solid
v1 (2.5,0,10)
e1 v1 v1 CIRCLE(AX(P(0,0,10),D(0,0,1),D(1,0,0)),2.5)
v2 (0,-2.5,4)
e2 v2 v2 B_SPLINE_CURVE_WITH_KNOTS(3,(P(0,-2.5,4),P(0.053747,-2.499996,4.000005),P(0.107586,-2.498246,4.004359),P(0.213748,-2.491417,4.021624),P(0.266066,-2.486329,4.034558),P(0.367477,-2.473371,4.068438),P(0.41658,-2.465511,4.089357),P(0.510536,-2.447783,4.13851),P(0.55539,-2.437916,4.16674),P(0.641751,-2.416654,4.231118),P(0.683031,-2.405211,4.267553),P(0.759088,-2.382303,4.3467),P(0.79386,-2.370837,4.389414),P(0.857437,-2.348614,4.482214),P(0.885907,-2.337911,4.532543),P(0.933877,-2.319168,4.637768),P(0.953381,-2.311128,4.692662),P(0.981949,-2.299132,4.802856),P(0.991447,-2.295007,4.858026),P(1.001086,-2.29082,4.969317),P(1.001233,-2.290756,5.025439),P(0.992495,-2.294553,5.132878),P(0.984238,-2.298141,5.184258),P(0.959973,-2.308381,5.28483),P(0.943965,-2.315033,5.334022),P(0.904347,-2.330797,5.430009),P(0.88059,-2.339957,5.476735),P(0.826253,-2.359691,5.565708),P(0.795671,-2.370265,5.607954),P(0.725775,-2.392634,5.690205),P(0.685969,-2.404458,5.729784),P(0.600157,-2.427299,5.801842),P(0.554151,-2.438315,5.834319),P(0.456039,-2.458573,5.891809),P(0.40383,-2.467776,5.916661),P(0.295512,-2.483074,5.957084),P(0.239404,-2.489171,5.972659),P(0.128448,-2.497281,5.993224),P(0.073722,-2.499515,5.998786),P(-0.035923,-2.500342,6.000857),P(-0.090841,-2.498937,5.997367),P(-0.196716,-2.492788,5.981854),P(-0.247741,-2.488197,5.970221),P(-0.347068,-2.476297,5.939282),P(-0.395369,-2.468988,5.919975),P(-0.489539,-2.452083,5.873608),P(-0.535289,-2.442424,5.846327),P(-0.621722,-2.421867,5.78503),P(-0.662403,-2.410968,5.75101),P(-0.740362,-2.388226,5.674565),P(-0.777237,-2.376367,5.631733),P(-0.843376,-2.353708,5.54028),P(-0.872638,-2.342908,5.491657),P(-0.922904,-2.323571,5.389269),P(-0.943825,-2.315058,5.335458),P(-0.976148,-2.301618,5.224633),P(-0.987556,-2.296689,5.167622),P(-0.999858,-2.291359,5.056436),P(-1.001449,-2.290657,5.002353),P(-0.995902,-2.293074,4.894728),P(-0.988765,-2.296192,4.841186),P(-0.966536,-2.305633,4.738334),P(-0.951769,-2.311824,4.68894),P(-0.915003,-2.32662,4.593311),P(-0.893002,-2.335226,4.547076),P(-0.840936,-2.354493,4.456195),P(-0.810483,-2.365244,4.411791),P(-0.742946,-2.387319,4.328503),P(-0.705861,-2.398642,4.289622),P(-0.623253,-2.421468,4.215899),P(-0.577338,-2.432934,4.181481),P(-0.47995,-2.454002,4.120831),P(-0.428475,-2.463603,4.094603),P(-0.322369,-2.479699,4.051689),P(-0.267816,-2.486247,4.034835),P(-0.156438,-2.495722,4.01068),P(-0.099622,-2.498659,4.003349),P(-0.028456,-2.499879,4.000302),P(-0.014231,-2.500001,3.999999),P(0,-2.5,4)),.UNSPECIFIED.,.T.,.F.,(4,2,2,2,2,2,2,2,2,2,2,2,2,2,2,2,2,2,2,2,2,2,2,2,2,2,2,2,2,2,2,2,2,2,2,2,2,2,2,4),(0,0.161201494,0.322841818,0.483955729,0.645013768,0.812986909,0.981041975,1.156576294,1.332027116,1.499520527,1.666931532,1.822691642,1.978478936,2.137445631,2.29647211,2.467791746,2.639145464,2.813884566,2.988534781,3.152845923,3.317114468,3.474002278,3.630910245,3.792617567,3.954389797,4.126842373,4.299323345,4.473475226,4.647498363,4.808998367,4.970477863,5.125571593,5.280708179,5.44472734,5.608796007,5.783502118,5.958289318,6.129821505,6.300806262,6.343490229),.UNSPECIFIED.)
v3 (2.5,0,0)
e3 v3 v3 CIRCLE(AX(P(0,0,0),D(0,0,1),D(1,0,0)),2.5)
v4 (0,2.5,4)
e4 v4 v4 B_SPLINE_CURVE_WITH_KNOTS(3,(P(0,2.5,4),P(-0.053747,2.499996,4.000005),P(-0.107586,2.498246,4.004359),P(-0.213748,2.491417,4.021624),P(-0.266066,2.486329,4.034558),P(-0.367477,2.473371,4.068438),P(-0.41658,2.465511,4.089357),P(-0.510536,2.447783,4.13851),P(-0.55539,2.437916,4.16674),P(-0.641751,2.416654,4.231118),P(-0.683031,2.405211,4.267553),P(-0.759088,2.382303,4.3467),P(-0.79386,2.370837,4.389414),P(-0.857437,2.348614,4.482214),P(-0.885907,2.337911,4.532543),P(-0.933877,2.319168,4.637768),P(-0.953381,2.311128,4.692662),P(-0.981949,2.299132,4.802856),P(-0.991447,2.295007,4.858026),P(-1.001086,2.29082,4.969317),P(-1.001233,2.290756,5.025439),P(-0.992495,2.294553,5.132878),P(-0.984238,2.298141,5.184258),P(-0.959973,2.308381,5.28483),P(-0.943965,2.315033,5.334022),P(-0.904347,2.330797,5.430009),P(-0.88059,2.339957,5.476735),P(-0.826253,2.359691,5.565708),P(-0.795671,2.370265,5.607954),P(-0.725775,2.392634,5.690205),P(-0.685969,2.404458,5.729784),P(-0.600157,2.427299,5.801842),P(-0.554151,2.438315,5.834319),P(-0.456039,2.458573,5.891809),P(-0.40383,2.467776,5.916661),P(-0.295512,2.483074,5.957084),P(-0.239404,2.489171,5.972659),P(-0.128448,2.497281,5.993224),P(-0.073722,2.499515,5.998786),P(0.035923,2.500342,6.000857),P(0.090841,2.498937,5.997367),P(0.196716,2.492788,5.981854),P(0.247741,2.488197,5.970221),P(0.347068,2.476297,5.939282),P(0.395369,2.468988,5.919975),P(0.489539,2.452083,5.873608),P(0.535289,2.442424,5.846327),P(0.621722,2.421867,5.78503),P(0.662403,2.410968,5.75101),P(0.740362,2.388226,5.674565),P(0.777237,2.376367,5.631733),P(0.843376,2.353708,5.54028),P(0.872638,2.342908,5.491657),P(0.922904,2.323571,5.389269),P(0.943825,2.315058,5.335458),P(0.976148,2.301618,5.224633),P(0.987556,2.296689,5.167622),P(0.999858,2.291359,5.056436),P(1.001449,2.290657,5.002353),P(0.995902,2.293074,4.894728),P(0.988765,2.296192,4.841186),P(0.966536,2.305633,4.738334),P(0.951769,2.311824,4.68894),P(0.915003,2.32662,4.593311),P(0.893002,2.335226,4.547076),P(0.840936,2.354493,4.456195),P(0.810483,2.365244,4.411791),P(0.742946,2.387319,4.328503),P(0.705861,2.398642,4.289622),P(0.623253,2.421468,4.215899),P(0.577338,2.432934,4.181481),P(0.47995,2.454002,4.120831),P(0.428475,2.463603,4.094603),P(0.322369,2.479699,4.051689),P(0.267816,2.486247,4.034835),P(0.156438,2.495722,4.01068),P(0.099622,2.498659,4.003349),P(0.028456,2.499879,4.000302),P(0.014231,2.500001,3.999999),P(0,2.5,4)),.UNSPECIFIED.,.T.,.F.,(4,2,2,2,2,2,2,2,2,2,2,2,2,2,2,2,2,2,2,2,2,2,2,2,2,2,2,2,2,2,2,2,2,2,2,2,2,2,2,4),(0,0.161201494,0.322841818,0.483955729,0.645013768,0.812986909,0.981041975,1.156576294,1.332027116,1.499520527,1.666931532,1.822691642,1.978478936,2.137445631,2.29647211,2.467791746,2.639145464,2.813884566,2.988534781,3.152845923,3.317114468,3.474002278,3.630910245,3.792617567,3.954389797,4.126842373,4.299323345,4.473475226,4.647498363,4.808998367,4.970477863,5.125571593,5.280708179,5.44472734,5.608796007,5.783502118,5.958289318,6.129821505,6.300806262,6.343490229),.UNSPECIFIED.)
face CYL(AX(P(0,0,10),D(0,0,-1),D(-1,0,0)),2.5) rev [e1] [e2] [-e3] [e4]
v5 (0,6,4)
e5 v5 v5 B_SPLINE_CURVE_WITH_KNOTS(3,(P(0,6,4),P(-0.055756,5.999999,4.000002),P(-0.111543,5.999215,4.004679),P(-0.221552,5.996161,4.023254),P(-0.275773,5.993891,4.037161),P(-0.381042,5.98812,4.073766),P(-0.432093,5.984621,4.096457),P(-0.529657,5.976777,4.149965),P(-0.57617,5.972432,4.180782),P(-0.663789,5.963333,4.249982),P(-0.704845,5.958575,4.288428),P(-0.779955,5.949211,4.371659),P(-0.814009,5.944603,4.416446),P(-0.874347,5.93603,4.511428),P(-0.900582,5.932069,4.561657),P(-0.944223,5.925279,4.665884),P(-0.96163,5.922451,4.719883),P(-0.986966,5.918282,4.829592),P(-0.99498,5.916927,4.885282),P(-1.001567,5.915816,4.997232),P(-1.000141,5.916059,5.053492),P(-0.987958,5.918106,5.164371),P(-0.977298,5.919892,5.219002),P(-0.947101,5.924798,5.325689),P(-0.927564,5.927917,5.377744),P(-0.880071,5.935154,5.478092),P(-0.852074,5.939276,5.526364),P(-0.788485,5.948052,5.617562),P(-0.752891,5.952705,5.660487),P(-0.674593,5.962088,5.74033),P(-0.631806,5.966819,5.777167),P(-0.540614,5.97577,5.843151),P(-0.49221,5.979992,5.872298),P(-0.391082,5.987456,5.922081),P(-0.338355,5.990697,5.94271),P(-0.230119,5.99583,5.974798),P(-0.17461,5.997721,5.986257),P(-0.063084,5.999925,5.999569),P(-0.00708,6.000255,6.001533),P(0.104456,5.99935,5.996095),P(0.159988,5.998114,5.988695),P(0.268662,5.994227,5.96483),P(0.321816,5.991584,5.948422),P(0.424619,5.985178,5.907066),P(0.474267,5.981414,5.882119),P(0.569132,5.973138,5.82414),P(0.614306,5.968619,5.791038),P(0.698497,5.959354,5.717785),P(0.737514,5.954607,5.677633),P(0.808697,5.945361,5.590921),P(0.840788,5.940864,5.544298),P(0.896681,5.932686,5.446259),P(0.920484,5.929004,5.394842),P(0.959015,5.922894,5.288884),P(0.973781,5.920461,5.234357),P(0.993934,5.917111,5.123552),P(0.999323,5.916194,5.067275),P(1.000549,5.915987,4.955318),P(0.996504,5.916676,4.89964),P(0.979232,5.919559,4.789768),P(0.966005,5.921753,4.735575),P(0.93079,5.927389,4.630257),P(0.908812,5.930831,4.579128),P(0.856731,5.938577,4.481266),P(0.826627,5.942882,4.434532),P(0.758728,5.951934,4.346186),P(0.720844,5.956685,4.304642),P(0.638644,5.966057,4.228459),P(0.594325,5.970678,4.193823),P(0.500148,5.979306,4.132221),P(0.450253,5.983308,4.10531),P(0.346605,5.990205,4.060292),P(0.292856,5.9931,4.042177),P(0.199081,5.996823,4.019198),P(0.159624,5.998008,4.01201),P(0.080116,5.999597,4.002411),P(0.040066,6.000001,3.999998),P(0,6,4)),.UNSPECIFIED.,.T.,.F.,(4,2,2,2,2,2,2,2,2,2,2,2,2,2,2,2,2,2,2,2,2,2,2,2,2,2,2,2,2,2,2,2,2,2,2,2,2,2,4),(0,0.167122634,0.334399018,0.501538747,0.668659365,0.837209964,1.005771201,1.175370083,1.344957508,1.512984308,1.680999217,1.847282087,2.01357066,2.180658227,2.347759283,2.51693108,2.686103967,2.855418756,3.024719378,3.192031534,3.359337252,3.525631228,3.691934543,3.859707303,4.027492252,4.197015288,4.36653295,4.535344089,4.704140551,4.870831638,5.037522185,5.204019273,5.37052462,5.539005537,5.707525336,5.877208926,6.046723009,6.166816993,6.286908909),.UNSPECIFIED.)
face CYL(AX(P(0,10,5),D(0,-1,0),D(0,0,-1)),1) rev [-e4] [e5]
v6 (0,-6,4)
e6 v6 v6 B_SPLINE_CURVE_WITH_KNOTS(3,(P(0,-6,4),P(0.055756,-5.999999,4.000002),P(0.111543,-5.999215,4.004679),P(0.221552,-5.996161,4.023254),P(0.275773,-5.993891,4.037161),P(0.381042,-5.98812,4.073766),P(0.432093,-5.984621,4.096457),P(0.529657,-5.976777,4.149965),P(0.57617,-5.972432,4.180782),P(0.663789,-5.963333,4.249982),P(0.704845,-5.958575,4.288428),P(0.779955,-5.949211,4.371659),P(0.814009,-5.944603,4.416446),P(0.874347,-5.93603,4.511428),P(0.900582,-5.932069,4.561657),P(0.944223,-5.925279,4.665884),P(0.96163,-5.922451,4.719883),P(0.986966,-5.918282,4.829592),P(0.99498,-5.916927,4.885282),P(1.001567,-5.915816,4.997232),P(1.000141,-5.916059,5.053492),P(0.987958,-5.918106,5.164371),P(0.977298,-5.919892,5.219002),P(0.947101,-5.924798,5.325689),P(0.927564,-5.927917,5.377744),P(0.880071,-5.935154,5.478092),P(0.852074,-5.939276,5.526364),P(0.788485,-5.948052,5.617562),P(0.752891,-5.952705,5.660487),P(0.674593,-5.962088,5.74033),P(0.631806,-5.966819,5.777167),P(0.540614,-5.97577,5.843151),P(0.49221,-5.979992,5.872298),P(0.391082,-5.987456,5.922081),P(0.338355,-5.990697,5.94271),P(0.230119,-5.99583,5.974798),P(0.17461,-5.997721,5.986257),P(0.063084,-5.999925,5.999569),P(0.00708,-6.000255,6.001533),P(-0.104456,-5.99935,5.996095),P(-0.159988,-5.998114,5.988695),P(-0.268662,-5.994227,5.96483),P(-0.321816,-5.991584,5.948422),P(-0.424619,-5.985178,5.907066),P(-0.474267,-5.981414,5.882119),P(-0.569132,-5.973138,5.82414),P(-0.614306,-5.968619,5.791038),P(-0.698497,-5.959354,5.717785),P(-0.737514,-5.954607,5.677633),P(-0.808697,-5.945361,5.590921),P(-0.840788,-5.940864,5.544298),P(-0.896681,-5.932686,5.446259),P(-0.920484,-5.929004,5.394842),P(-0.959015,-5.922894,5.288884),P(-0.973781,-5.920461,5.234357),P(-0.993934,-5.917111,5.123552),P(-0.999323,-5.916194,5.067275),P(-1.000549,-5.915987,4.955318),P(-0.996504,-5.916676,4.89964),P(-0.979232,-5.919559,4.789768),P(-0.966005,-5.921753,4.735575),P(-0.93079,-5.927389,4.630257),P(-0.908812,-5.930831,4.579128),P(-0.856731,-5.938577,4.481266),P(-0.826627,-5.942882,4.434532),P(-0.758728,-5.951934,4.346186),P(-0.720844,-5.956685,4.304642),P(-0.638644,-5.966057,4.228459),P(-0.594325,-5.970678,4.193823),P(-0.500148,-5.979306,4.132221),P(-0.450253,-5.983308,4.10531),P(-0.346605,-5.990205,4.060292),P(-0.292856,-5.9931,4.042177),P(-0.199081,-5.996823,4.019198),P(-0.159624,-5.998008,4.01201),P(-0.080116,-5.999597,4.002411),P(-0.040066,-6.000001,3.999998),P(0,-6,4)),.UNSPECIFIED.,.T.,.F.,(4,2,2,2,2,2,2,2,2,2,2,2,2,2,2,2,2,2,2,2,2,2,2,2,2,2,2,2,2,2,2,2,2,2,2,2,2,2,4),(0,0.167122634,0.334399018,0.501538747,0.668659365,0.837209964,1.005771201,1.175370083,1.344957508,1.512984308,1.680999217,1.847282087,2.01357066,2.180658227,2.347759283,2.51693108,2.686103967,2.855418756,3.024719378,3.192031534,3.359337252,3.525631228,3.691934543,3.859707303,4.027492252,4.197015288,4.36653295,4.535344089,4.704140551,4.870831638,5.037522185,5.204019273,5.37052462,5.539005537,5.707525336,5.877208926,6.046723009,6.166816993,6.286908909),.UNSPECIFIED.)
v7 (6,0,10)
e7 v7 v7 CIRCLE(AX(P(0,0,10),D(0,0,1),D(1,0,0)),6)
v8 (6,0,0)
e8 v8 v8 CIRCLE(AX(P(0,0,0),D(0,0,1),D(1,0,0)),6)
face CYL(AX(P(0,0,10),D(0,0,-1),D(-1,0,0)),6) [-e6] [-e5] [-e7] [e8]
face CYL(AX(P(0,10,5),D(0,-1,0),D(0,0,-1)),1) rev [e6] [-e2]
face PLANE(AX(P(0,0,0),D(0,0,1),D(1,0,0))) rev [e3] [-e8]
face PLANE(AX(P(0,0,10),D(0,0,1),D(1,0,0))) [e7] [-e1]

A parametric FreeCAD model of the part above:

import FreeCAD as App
import Part
import Sketcher

V = App.Vector
Q = App.Units.Quantity

doc = App.newDocument("Part")
body = doc.addObject("PartDesign::Body", "Body")

sketch1 = body.newObject("Sketcher::SketchObject", "Sketch")
sketch1.AttachmentSupport = (doc.getObject("XY_Plane"), [""])
sketch1.MapMode = "FlatFace"
sketch1.addGeometry(Part.Circle(V(0, 0, 0), V(0, 0, 1), 6), False)
sketch1.addGeometry(Part.Circle(V(0, 0, 0), V(0, 0, 1), 2.5), False)
sketch1.addConstraint(Sketcher.Constraint("Coincident", 0, 3, -1, 1))
sketch1.addConstraint(Sketcher.Constraint("Coincident", 1, 3, -1, 1))
sketch1.addConstraint(Sketcher.Constraint("Diameter", 0, Q("12 mm")))
sketch1.addConstraint(Sketcher.Constraint("Diameter", 1, Q("5 mm")))
pad1 = body.newObject("PartDesign::Pad", "Pad")
pad1.Profile = sketch1
pad1.Length = 10

sketch2 = body.newObject("Sketcher::SketchObject", "Sketch001")
sketch2.AttachmentSupport = (doc.getObject("XZ_Plane"), [""])
sketch2.MapMode = "FlatFace"
sketch2.addGeometry(Part.Circle(V(0, 5, 0), V(0, 0, 1), 1), False)
sketch2.addConstraint(Sketcher.Constraint("PointOnObject", 0, 3, -2))
sketch2.addConstraint(Sketcher.Constraint("Diameter", 0, Q("2 mm")))
sketch2.addConstraint(Sketcher.Constraint("DistanceY", -1, 1, 0, 3, Q("5 mm")))
pocket1 = body.newObject("PartDesign::Pocket", "Pocket")
pocket1.Profile = sketch2
pocket1.Type = "ThroughAll"
pocket1.Midplane = True

doc.recompute()
